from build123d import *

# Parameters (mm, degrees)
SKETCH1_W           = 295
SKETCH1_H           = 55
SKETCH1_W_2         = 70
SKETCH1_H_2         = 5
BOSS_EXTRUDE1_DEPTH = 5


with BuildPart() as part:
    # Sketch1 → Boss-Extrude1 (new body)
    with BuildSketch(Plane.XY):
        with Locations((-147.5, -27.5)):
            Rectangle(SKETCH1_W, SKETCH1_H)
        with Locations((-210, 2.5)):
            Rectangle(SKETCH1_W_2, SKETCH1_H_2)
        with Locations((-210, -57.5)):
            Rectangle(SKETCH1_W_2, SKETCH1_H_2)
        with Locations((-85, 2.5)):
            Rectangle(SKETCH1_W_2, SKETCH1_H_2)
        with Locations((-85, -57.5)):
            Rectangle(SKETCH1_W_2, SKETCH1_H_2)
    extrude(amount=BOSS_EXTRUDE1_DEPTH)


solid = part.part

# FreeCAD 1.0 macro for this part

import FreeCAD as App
import Part
import Sketcher
from FreeCAD import Vector
Q = App.Units.Quantity


def add_polygon(sketch, points):
    """Adds a closed chain of lines whose ends are joined by coincident constraints."""
    first, n = sketch.GeometryCount, len(points)
    for a, b in zip(points, points[1:] + points[:1]):
        sketch.addGeometry(Part.LineSegment(App.Vector(*a, 0), App.Vector(*b, 0)), False)
    for i in range(n):
        sketch.addConstraint(Sketcher.Constraint("Coincident", first + i, 2, first + (i + 1) % n, 1))

doc = App.newDocument("Part")
params = doc.addObject("Spreadsheet::Sheet", "Params")
for row, (alias, value) in enumerate([
    ("sketch1_width", "50 mm"),
    ("sketch1_width2", "70 mm"),
    ("sketch1_width3", "55 mm"),
    ("sketch1_height", "5 mm"),
    ("pad1_length", "5 mm"),
], start=1):
    params.set(f"A{row}", alias)
    params.set(f"B{row}", "=" + value)
    params.setAlias(f"B{row}", alias)

body = doc.addObject("PartDesign::Body", "Body")

# Sketch on XY plane
sketch1 = body.newObject("Sketcher::SketchObject", "Sketch")
sketch1.AttachmentSupport = (doc.getObject("XY_Plane"), [""])
sketch1.MapMode = "FlatFace"
add_polygon(sketch1, [(-295, 0), (-295, -55), (-245, -55), (-245, -60), (-175, -60), (-175, -55), (-120, -55), (-120, -60), (-50, -60), (-50, -55), (0, -55), (0, 0), (-50, 0), (-50, 5), (-120, 5), (-120, 0), (-175, 0), (-175, 5), (-245, 5), (-245, 0)])  # lines 0-19
sketch1.addConstraint([
    Sketcher.Constraint("Vertical", 0),
    Sketcher.Constraint("Horizontal", 1),
    Sketcher.Constraint("Vertical", 2),
    Sketcher.Constraint("Horizontal", 3),
    Sketcher.Constraint("Vertical", 4),
    Sketcher.Constraint("Horizontal", 5),
    Sketcher.Constraint("Vertical", 6),
    Sketcher.Constraint("Horizontal", 7),
    Sketcher.Constraint("Vertical", 8),
    Sketcher.Constraint("Horizontal", 9),
    Sketcher.Constraint("Vertical", 10),
    Sketcher.Constraint("Horizontal", 11),
    Sketcher.Constraint("Vertical", 12),
    Sketcher.Constraint("Horizontal", 13),
    Sketcher.Constraint("Vertical", 14),
    Sketcher.Constraint("Horizontal", 15),
    Sketcher.Constraint("Vertical", 16),
    Sketcher.Constraint("Horizontal", 17),
    Sketcher.Constraint("Vertical", 18),
    Sketcher.Constraint("Horizontal", 19),
    Sketcher.Constraint("Coincident", 10, 2, -1, 1),
    Sketcher.Constraint("PointOnObject", 14, 2, -1),
    Sketcher.Constraint("PointOnObject", 18, 2, -1),
    Sketcher.Constraint("Horizontal", 1, 2, 4, 2),
    Sketcher.Constraint("Horizontal", 3, 2, 6, 2),
    Sketcher.Constraint("Horizontal", 5, 2, 8, 2),
    Sketcher.Constraint("Horizontal", 13, 2, 16, 2),
    Sketcher.Constraint("Vertical", 8, 2, 11, 2),
    Sketcher.Constraint("Vertical", 6, 2, 13, 2),
    Sketcher.Constraint("Vertical", 4, 2, 15, 2),
    Sketcher.Constraint("Vertical", 2, 2, 17, 2),
    Sketcher.Constraint("Equal", 3, 7),
    Sketcher.Constraint("Equal", 1, 9),
    Sketcher.Constraint("Equal", 15, 0),
    Sketcher.Constraint("Equal", 8, 12),
    Sketcher.Constraint("DistanceX", 1, 1, 1, 2, Q("50 mm")),
    Sketcher.Constraint("DistanceX", 3, 1, 3, 2, Q("70 mm")),
    Sketcher.Constraint("DistanceX", 5, 1, 5, 2, Q("55 mm")),
    Sketcher.Constraint("DistanceY", 2, 2, 2, 1, Q("5 mm")),
])
sketch1.setExpression("Constraints[55]", "Params.sketch1_width")
sketch1.setExpression("Constraints[56]", "Params.sketch1_width2")
sketch1.setExpression("Constraints[57]", "Params.sketch1_width3")
sketch1.setExpression("Constraints[58]", "Params.sketch1_height")
pad1 = body.newObject("PartDesign::Pad", "Pad")
pad1.Profile = sketch1
pad1.setExpression("Length", "Params.pad1_length")

doc.recompute()
